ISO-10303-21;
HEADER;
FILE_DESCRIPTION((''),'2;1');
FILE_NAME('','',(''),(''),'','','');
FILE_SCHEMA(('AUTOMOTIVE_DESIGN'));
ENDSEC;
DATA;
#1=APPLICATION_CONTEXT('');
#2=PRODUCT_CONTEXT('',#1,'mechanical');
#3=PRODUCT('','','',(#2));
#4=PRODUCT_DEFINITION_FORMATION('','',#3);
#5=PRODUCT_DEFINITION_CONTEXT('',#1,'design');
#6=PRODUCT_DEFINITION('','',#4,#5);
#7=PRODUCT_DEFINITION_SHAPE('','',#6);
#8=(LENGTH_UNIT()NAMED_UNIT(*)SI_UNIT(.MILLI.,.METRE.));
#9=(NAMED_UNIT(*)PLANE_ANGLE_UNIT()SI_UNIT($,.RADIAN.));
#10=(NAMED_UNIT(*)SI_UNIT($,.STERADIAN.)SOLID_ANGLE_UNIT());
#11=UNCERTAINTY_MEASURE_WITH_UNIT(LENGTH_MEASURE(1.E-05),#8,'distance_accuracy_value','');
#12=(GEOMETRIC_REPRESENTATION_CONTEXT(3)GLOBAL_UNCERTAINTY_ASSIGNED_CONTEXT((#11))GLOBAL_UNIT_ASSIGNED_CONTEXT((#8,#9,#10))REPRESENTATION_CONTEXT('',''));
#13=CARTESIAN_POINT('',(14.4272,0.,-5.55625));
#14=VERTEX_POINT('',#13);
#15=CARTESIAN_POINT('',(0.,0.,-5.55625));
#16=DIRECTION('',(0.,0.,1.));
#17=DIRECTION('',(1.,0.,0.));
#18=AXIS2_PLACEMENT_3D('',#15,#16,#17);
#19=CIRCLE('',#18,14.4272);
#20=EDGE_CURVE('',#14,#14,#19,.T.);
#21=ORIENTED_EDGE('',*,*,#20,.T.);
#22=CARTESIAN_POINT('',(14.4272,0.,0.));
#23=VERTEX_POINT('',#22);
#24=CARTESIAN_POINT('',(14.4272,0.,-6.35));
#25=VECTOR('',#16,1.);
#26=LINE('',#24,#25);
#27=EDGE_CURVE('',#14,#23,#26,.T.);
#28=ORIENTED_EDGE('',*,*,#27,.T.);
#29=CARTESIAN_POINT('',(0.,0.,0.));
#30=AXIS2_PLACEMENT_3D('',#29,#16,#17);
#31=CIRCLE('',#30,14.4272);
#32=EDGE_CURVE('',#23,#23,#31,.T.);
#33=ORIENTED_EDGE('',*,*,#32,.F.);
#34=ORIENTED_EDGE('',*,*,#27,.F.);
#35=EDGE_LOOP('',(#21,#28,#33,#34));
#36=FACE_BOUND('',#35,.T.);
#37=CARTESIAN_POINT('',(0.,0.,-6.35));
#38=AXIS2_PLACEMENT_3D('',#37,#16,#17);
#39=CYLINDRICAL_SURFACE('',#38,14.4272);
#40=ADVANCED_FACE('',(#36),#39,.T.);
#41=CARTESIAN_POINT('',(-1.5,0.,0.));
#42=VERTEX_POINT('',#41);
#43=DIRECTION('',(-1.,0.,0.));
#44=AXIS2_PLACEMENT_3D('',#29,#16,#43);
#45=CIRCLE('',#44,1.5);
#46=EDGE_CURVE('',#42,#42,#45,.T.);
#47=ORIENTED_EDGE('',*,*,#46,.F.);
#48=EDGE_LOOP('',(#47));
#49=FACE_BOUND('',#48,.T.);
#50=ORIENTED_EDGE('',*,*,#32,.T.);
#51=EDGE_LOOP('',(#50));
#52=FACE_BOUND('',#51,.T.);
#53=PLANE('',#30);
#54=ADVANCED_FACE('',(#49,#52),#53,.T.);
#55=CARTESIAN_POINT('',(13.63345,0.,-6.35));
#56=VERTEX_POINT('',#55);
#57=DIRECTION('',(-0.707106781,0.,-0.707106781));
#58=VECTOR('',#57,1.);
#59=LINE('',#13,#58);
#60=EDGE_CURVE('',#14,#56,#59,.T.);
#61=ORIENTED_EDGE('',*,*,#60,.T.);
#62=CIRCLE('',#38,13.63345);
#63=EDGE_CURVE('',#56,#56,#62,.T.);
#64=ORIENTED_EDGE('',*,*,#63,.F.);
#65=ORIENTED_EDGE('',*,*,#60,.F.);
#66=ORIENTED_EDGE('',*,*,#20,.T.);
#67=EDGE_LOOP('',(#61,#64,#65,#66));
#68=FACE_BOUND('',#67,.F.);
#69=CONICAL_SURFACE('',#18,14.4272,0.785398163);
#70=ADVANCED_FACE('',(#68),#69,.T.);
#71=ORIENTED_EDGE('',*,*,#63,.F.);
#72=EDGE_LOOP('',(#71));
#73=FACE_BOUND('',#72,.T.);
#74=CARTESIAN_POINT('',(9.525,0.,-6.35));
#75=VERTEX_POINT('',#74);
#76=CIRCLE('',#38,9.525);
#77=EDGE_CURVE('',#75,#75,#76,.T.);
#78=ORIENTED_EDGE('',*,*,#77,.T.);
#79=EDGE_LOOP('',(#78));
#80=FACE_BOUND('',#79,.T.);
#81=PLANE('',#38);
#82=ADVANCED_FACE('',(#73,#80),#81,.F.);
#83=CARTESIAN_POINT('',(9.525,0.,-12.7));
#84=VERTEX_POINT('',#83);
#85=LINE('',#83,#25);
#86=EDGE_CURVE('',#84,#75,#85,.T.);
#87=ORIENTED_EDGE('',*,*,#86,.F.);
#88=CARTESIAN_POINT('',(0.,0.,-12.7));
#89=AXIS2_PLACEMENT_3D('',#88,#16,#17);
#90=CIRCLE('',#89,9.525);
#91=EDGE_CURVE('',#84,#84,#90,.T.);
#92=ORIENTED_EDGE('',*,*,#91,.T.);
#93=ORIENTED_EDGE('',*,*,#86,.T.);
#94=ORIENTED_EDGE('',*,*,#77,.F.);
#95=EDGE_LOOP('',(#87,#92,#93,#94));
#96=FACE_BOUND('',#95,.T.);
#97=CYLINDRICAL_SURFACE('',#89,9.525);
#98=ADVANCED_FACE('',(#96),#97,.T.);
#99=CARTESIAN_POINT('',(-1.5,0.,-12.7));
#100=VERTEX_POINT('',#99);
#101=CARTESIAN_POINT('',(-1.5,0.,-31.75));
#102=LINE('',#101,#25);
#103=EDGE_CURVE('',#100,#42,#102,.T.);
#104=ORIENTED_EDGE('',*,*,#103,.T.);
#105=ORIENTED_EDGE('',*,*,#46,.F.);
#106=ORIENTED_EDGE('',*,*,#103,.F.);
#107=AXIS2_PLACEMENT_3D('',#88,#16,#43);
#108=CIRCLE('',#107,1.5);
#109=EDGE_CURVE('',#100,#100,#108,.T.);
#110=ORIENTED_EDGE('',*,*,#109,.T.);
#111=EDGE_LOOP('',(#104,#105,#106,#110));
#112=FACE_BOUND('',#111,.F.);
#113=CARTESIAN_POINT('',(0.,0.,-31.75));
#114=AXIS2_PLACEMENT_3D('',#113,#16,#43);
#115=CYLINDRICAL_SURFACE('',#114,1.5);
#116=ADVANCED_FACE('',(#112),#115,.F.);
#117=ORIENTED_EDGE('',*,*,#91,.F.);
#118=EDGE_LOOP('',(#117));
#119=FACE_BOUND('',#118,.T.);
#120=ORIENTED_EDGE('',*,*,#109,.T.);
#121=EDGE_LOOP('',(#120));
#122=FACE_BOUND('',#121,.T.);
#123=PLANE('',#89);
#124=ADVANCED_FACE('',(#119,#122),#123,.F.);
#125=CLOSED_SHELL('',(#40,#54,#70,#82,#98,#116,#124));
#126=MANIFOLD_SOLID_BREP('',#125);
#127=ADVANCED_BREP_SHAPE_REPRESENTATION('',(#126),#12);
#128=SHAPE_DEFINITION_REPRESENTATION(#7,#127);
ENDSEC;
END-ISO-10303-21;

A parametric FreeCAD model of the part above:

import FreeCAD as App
import Part
import Sketcher

V = App.Vector
Q = App.Units.Quantity


def edges_at(feature, points):
    """Names of the edges that pass closest to the given points."""
    edges = feature.Shape.Edges
    near = lambda p: min(range(len(edges)), key=lambda i: edges[i].distToShape(Part.Vertex(*p))[0])
    return sorted({f"Edge{near(p) + 1}" for p in points})

doc = App.newDocument("Part")
body = doc.addObject("PartDesign::Body", "Body")

# Sketch on XZ plane
sketch1 = doc.addObject("Sketcher::SketchObject", "Sketch")
body.addObject(sketch1)
sketch1.AttachmentSupport = (doc.XZ_Plane, [""])
sketch1.MapMode = "FlatFace"
sketch1.addGeometry([
    Part.LineSegment(V(14.4272, 0, 0), V(0, 0, 0)),  # 0
    Part.LineSegment(V(0, 0, 0), V(0, -12.7, 0)),  # 1
    Part.LineSegment(V(0, -12.7, 0), V(9.525, -12.7, 0)),  # 2
    Part.LineSegment(V(9.525, -12.7, 0), V(9.525, -6.35, 0)),  # 3
    Part.LineSegment(V(9.525, -6.35, 0), V(14.4272, -6.35, 0)),  # 4
    Part.LineSegment(V(14.4272, -6.35, 0), V(14.4272, 0, 0)),  # 5
], False)
sketch1.addConstraint([
    Sketcher.Constraint("Coincident", 0, 2, 1, 1),
    Sketcher.Constraint("Coincident", 1, 2, 2, 1),
    Sketcher.Constraint("Coincident", 2, 2, 3, 1),
    Sketcher.Constraint("Coincident", 3, 2, 4, 1),
    Sketcher.Constraint("Coincident", 4, 2, 5, 1),
    Sketcher.Constraint("Coincident", 5, 2, 0, 1),
    Sketcher.Constraint("Horizontal", 0),
    Sketcher.Constraint("Vertical", 1),
    Sketcher.Constraint("Horizontal", 2),
    Sketcher.Constraint("Vertical", 3),
    Sketcher.Constraint("Horizontal", 4),
    Sketcher.Constraint("Vertical", 5),
    Sketcher.Constraint("Coincident", 0, 2, -1, 1),
    Sketcher.Constraint("Equal", 3, 5),
    Sketcher.Constraint("DistanceY", 1, 2, 1, 1, Q("0.5 in")),
    Sketcher.Constraint("DistanceX", 0, 2, 0, 1, Q("0.568 in")),
    Sketcher.Constraint("DistanceX", 2, 1, 2, 2, Q("0.375 in")),
])
revolution = doc.addObject("PartDesign::Revolution", "Revolution")
body.addObject(revolution)
revolution.Profile = sketch1
revolution.ReferenceAxis = (sketch1, ["V_Axis"])
revolution.Angle = 360

# Sketch on XY plane
sketch2 = doc.addObject("Sketcher::SketchObject", "Sketch001")
body.addObject(sketch2)
sketch2.AttachmentSupport = (doc.XY_Plane, [""])
sketch2.MapMode = "FlatFace"
sketch2.addGeometry(Part.Circle(V(0, 0, 0), V(0, 0, 1), 1.0287), False)
sketch2.addConstraint([
    Sketcher.Constraint("Coincident", 0, 3, -1, 1),
    Sketcher.Constraint("Diameter", 0, Q("0.081 in")),
])
doc.recompute()
hole = doc.addObject("PartDesign::Hole", "Hole")
body.addObject(hole)
hole.Profile = sketch2
hole.ThreadType = "None"
hole.Diameter = Q("0.081 in")
hole.DepthType = "ThroughAll"

# Sketch on XY plane
sketch3 = doc.addObject("Sketcher::SketchObject", "Sketch002")
body.addObject(sketch3)
sketch3.AttachmentSupport = (doc.XY_Plane, [""])
sketch3.MapMode = "FlatFace"
sketch3.AttachmentOffset = App.Placement(V(0, 0, -0.5 * 25.4), App.Rotation())
sketch3.addGeometry(Part.Circle(V(0, 0, 0), V(0, 0, 1), 1.5), False)
sketch3.addConstraint([
    Sketcher.Constraint("Coincident", 0, 3, -1, 1),
    Sketcher.Constraint("Diameter", 0, 3.0),
])
doc.recompute()
hole2 = doc.addObject("PartDesign::Hole", "Hole001")
body.addObject(hole2)
hole2.Profile = sketch3
hole2.ThreadType = "None"
hole2.Diameter = 3
hole2.DepthType = "Dimension"
hole2.Depth = Q("0.75 in")
hole2.DrillPoint = "Angled"
hole2.DrillPointAngle = 118
hole2.Reversed = True
doc.recompute()

chamfer = doc.addObject("PartDesign::Chamfer", "Chamfer")
body.addObject(chamfer)
chamfer.Base = (hole2, edges_at(hole2, [(-14.427, 0, -6.35)]))
chamfer.Size = Q("0.03125 in")

doc.recompute()
